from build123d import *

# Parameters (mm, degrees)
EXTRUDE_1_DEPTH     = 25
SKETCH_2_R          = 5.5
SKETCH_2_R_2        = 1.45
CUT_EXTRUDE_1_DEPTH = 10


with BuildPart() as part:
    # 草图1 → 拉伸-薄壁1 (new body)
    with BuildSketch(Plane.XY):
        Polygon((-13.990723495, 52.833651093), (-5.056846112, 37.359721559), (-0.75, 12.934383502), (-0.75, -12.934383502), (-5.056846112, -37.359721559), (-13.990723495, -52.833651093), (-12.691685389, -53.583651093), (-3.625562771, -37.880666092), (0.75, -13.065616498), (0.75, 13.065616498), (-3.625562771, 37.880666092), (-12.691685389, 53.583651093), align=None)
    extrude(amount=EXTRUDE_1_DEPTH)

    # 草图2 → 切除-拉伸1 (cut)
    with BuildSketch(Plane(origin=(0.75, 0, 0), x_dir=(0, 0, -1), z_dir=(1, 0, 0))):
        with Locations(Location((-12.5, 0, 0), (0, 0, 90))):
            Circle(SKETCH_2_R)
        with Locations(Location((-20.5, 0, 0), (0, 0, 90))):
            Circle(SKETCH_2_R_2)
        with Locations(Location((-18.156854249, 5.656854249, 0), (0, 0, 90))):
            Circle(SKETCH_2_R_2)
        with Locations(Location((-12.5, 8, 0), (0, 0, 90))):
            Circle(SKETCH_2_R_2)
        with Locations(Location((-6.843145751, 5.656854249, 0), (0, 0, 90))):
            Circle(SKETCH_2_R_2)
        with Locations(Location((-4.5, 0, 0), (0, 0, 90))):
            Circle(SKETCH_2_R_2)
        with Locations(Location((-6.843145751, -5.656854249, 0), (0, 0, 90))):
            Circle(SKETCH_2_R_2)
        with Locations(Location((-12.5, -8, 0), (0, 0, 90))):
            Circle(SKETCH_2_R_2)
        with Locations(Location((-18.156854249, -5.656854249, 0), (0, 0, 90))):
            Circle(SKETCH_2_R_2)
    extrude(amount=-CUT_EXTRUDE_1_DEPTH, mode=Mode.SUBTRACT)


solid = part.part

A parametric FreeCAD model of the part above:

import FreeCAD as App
import Part
import Sketcher
Q = App.Units.Quantity


def add_polygon(sketch, points):
    """Adds a closed chain of lines whose ends are joined by coincident constraints."""
    first, n = sketch.GeometryCount, len(points)
    for a, b in zip(points, points[1:] + points[:1]):
        sketch.addGeometry(Part.LineSegment(App.Vector(*a, 0), App.Vector(*b, 0)), False)
    for i in range(n):
        sketch.addConstraint(Sketcher.Constraint("Coincident", first + i, 2, first + (i + 1) % n, 1))

doc = App.newDocument("Part")
body = doc.addObject("PartDesign::Body", "Body")

# Sketch on XY plane
sketch1 = body.newObject("Sketcher::SketchObject", "Sketch")
sketch1.AttachmentSupport = (doc.getObject("XY_Plane"), [""])
sketch1.MapMode = "FlatFace"
add_polygon(sketch1, [(-14, 52.8), (-5.1, 37.4), (-0.8, 12.9), (-0.8, -12.9), (-5.1, -37.4), (-14, -52.8), (-12.7, -53.6), (-3.6, -37.9), (0.8, -13.1), (0.8, 13.1), (-3.6, 37.9), (-12.7, 53.6)])  # lines 0-11
sketch1.addConstraint(Sketcher.Constraint("Vertical", 2))
sketch1.addConstraint(Sketcher.Constraint("Vertical", 8))
sketch1.addConstraint(Sketcher.Constraint("Symmetric", 0, 2, 3, 2, -1))
sketch1.addConstraint(Sketcher.Constraint("Symmetric", 6, 2, 9, 2, -1))
sketch1.addConstraint(Sketcher.Constraint("Symmetric", 5, 2, 10, 2, -1))
sketch1.addConstraint(Sketcher.Constraint("Symmetric", 4, 2, 11, 2, -1))
sketch1.addConstraint(Sketcher.Constraint("Perpendicular", 4, 5))
sketch1.addConstraint(Sketcher.Constraint("Perpendicular", 5, 6))
sketch1.addConstraint(Sketcher.Constraint("Parallel", 3, 7))
sketch1.addConstraint(Sketcher.Constraint("Parallel", 1, 9))
sketch1.addConstraint(Sketcher.Constraint("Equal", 1, 3))
sketch1.addConstraint(Sketcher.Constraint("Angle", 0, Q("-60 deg")))
sketch1.addConstraint(Sketcher.Constraint("Angle", 1, Q("-80 deg")))
sketch1.addConstraint(Sketcher.Constraint("DistanceY", 7, 2, 1, 2, 26.0))
sketch1.addConstraint(Sketcher.Constraint("Distance", 5, 1.5))
sketch1.addConstraint(Sketcher.Constraint("DistanceX", 2, 2, 7, 2, 1.5))
sketch1.addConstraint(Sketcher.Constraint("DistanceX", 1, 2, -1, 1, 0.75))
sketch1.addConstraint(Sketcher.Constraint("Distance", 1, 24.802138))
sketch1.addConstraint(Sketcher.Constraint("Distance", 7, 25.197862))
sketch1.addConstraint(Sketcher.Constraint("DistanceY", 4, 2, -1, 1, 52.833651))
pad1 = body.newObject("PartDesign::Pad", "Pad")
pad1.Profile = sketch1
pad1.Length = 25

# Sketch on YZ plane
sketch2 = body.newObject("Sketcher::SketchObject", "Sketch001")
sketch2.AttachmentSupport = (doc.getObject("YZ_Plane"), [""])
sketch2.MapMode = "FlatFace"
sketch2.AttachmentOffset = App.Placement(App.Vector(0, 0, 0.75), App.Rotation())
sketch2.addGeometry(Part.Circle(App.Vector(0, 12.5, 0), App.Vector(0, 0, 1), 5.5), False)
sketch2.addGeometry(Part.Circle(App.Vector(0, 20.5, 0), App.Vector(0, 0, 1), 1.4), False)
sketch2.addGeometry(Part.Circle(App.Vector(5.7, 18.2, 0), App.Vector(0, 0, 1), 1.4), False)
sketch2.addGeometry(Part.Circle(App.Vector(8, 12.5, 0), App.Vector(0, 0, 1), 1.4), False)
sketch2.addGeometry(Part.Circle(App.Vector(5.7, 6.8, 0), App.Vector(0, 0, 1), 1.4), False)
sketch2.addGeometry(Part.Circle(App.Vector(0, 4.5, 0), App.Vector(0, 0, 1), 1.4), False)
sketch2.addGeometry(Part.Circle(App.Vector(-5.7, 6.8, 0), App.Vector(0, 0, 1), 1.4), False)
sketch2.addGeometry(Part.Circle(App.Vector(-8, 12.5, 0), App.Vector(0, 0, 1), 1.4), False)
sketch2.addGeometry(Part.Circle(App.Vector(-5.7, 18.2, 0), App.Vector(0, 0, 1), 1.4), False)
sketch2.addConstraint(Sketcher.Constraint("Equal", 1, 2))
sketch2.addConstraint(Sketcher.Constraint("Equal", 2, 3))
sketch2.addConstraint(Sketcher.Constraint("Equal", 3, 4))
sketch2.addConstraint(Sketcher.Constraint("Equal", 4, 5))
sketch2.addConstraint(Sketcher.Constraint("Equal", 5, 6))
sketch2.addConstraint(Sketcher.Constraint("Equal", 6, 7))
sketch2.addConstraint(Sketcher.Constraint("Equal", 7, 8))
sketch2.addConstraint(Sketcher.Constraint("Symmetric", 4, 3, 6, 3, -2))
sketch2.addConstraint(Sketcher.Constraint("Symmetric", 3, 3, 7, 3, -2))
sketch2.addConstraint(Sketcher.Constraint("Symmetric", 2, 3, 8, 3, -2))
sketch2.addConstraint(Sketcher.Constraint("PointOnObject", 0, 3, -2))
sketch2.addConstraint(Sketcher.Constraint("PointOnObject", 1, 3, -2))
sketch2.addConstraint(Sketcher.Constraint("PointOnObject", 5, 3, -2))
sketch2.addConstraint(Sketcher.Constraint("Horizontal", 0, 3, 3, 3))
sketch2.addConstraint(Sketcher.Constraint("Vertical", 2, 3, 4, 3))
sketch2.addConstraint(Sketcher.Constraint("Diameter", 0, 11.0))
sketch2.addConstraint(Sketcher.Constraint("Diameter", 1, 2.9))
sketch2.addConstraint(Sketcher.Constraint("DistanceX", -1, 1, 3, 3, 8.0))
sketch2.addConstraint(Sketcher.Constraint("DistanceY", 0, 3, 1, 3, 8.0))
sketch2.addConstraint(Sketcher.Constraint("DistanceY", 5, 3, 0, 3, 8.0))
sketch2.addConstraint(Sketcher.Constraint("DistanceY", -1, 1, 0, 3, 12.5))
sketch2.addConstraint(Sketcher.Constraint("DistanceY", 4, 3, 2, 3, 11.313708))
sketch2.addConstraint(Sketcher.Constraint("DistanceX", 6, 3, 4, 3, 11.313708))
sketch2.addConstraint(Sketcher.Constraint("DistanceY", -1, 1, 2, 3, 18.156854))
pocket1 = body.newObject("PartDesign::Pocket", "Pocket")
pocket1.Profile = sketch2
pocket1.Length = 10

doc.recompute()
